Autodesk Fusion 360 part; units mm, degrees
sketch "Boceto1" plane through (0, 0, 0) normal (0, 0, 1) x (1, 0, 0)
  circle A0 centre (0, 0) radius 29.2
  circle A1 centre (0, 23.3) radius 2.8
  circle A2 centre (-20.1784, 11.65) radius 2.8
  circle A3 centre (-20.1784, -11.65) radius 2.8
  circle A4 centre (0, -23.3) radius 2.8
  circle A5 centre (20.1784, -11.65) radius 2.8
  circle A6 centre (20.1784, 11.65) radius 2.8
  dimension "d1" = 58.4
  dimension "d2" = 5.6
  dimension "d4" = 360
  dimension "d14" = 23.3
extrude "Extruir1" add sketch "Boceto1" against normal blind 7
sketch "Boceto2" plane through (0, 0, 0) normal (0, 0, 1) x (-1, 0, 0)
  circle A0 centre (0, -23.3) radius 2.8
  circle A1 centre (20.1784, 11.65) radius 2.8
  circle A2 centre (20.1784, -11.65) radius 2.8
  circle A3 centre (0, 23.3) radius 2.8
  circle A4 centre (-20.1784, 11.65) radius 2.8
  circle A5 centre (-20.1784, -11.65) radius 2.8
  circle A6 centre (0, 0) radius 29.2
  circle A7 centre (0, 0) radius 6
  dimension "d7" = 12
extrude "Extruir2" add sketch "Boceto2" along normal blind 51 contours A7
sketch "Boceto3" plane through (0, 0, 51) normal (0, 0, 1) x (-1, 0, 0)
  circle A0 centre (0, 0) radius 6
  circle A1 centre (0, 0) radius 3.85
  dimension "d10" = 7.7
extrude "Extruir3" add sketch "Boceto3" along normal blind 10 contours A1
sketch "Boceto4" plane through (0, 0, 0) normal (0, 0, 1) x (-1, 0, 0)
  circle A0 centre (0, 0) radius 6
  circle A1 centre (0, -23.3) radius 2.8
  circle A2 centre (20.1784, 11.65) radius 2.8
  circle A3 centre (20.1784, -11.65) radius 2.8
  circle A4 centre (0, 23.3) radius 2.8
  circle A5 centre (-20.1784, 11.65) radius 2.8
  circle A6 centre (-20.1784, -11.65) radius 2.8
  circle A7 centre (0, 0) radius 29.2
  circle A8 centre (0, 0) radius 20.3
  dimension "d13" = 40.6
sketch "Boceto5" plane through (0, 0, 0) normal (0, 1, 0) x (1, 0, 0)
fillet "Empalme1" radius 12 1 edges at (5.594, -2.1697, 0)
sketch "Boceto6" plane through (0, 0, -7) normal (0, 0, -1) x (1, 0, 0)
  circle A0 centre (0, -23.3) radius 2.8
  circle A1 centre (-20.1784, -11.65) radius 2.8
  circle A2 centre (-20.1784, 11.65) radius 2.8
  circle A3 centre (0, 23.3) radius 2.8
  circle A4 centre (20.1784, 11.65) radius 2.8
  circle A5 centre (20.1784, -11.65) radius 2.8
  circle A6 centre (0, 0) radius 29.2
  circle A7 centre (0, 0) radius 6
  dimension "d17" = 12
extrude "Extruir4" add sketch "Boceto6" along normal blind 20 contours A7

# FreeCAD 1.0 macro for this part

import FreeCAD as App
import Part
import Sketcher
from FreeCAD import Vector
Q = App.Units.Quantity


def edges_at(feature, points):
    """Names of the edges that pass closest to the given points."""
    edges = feature.Shape.Edges
    near = lambda p: min(range(len(edges)), key=lambda i: edges[i].distToShape(Part.Vertex(*p))[0])
    return sorted({f"Edge{near(p) + 1}" for p in points})

doc = App.newDocument("Part")
body = doc.addObject("PartDesign::Body", "Body")

# Sketch on XY plane
sketch1 = body.newObject("Sketcher::SketchObject", "Sketch")
sketch1.AttachmentSupport = (doc.getObject("XY_Plane"), [""])
sketch1.MapMode = "FlatFace"
sketch1.addGeometry(Part.Circle(Vector(0, 0, 0), Vector(0, 0, 1), 29.2), False)
sketch1.addGeometry(Part.Circle(Vector(0, -23.3, 0), Vector(0, 0, 1), 2.8), False)
sketch1.addGeometry(Part.Circle(Vector(-20.2, -11.7, 0), Vector(0, 0, 1), 2.8), False)
sketch1.addGeometry(Part.Circle(Vector(20.2, -11.7, 0), Vector(0, 0, 1), 2.8), False)
sketch1.addGeometry(Part.Circle(Vector(-20.2, 11.7, 0), Vector(0, 0, 1), 2.8), False)
sketch1.addGeometry(Part.Circle(Vector(0, 23.3, 0), Vector(0, 0, 1), 2.8), False)
sketch1.addGeometry(Part.Circle(Vector(20.2, 11.7, 0), Vector(0, 0, 1), 2.8), False)
sketch1.addConstraint(Sketcher.Constraint("Coincident", 0, 3, -1, 1))
sketch1.addConstraint(Sketcher.Constraint("Equal", 1, 2))
sketch1.addConstraint(Sketcher.Constraint("Equal", 2, 3))
sketch1.addConstraint(Sketcher.Constraint("Equal", 3, 4))
sketch1.addConstraint(Sketcher.Constraint("Equal", 4, 5))
sketch1.addConstraint(Sketcher.Constraint("Equal", 5, 6))
sketch1.addConstraint(Sketcher.Constraint("Symmetric", 3, 3, 4, 3, -1, 1))
sketch1.addConstraint(Sketcher.Constraint("Symmetric", 1, 3, 5, 3, -1, 1))
sketch1.addConstraint(Sketcher.Constraint("Symmetric", 2, 3, 6, 3, -1, 1))
sketch1.addConstraint(Sketcher.Constraint("Symmetric", 2, 3, 3, 3, -2))
sketch1.addConstraint(Sketcher.Constraint("PointOnObject", 1, 3, -2))
sketch1.addConstraint(Sketcher.Constraint("Diameter", 0, Q("58.4 mm")))
sketch1.addConstraint(Sketcher.Constraint("Diameter", 1, Q("5.6 mm")))
sketch1.addConstraint(Sketcher.Constraint("DistanceY", 1, 3, -1, 1, Q("23.3 mm")))
sketch1.addConstraint(Sketcher.Constraint("DistanceY", 2, 3, 4, 3, Q("23.3 mm")))
sketch1.addConstraint(Sketcher.Constraint("DistanceX", 2, 3, -1, 1, Q("20.1784 mm")))
pad1 = body.newObject("PartDesign::Pad", "Pad")
pad1.Profile = sketch1
pad1.Length = 7
pad1.Reversed = True

# Sketch on XY plane
sketch2 = body.newObject("Sketcher::SketchObject", "Sketch001")
sketch2.AttachmentSupport = (doc.getObject("XY_Plane"), [""])
sketch2.MapMode = "FlatFace"
sketch2.addGeometry(Part.Circle(Vector(0, 0, 0), Vector(0, 0, 1), 6), False)
sketch2.addConstraint(Sketcher.Constraint("Coincident", 0, 3, -1, 1))
sketch2.addConstraint(Sketcher.Constraint("Diameter", 0, Q("12 mm")))
pad2 = body.newObject("PartDesign::Pad", "Pad001")
pad2.Profile = sketch2
pad2.Length = 51

# Sketch on XY plane
sketch3 = body.newObject("Sketcher::SketchObject", "Sketch002")
sketch3.AttachmentSupport = (doc.getObject("XY_Plane"), [""])
sketch3.MapMode = "FlatFace"
sketch3.AttachmentOffset = App.Placement(Vector(0, 0, 51), App.Rotation())
sketch3.addGeometry(Part.Circle(Vector(0, 0, 0), Vector(0, 0, 1), 3.9), False)
sketch3.addConstraint(Sketcher.Constraint("Coincident", 0, 3, -1, 1))
sketch3.addConstraint(Sketcher.Constraint("Diameter", 0, Q("7.7 mm")))
pad3 = body.newObject("PartDesign::Pad", "Pad002")
pad3.Profile = sketch3
pad3.Length = 10
doc.recompute()

fillet = body.newObject("PartDesign::Fillet", "Fillet")
fillet.Base = (pad3, edges_at(pad3, [(5.594, -2.17, 0)]))
fillet.Radius = 12

# Sketch on XY plane
sketch4 = body.newObject("Sketcher::SketchObject", "Sketch003")
sketch4.AttachmentSupport = (doc.getObject("XY_Plane"), [""])
sketch4.MapMode = "FlatFace"
sketch4.AttachmentOffset = App.Placement(Vector(0, 0, -7), App.Rotation())
sketch4.addGeometry(Part.Circle(Vector(0, 0, 0), Vector(0, 0, 1), 6), False)
sketch4.addConstraint(Sketcher.Constraint("Coincident", 0, 3, -1, 1))
sketch4.addConstraint(Sketcher.Constraint("Diameter", 0, Q("12 mm")))
pad4 = body.newObject("PartDesign::Pad", "Pad003")
pad4.Profile = sketch4
pad4.Length = 20
pad4.Reversed = True

doc.recompute()
